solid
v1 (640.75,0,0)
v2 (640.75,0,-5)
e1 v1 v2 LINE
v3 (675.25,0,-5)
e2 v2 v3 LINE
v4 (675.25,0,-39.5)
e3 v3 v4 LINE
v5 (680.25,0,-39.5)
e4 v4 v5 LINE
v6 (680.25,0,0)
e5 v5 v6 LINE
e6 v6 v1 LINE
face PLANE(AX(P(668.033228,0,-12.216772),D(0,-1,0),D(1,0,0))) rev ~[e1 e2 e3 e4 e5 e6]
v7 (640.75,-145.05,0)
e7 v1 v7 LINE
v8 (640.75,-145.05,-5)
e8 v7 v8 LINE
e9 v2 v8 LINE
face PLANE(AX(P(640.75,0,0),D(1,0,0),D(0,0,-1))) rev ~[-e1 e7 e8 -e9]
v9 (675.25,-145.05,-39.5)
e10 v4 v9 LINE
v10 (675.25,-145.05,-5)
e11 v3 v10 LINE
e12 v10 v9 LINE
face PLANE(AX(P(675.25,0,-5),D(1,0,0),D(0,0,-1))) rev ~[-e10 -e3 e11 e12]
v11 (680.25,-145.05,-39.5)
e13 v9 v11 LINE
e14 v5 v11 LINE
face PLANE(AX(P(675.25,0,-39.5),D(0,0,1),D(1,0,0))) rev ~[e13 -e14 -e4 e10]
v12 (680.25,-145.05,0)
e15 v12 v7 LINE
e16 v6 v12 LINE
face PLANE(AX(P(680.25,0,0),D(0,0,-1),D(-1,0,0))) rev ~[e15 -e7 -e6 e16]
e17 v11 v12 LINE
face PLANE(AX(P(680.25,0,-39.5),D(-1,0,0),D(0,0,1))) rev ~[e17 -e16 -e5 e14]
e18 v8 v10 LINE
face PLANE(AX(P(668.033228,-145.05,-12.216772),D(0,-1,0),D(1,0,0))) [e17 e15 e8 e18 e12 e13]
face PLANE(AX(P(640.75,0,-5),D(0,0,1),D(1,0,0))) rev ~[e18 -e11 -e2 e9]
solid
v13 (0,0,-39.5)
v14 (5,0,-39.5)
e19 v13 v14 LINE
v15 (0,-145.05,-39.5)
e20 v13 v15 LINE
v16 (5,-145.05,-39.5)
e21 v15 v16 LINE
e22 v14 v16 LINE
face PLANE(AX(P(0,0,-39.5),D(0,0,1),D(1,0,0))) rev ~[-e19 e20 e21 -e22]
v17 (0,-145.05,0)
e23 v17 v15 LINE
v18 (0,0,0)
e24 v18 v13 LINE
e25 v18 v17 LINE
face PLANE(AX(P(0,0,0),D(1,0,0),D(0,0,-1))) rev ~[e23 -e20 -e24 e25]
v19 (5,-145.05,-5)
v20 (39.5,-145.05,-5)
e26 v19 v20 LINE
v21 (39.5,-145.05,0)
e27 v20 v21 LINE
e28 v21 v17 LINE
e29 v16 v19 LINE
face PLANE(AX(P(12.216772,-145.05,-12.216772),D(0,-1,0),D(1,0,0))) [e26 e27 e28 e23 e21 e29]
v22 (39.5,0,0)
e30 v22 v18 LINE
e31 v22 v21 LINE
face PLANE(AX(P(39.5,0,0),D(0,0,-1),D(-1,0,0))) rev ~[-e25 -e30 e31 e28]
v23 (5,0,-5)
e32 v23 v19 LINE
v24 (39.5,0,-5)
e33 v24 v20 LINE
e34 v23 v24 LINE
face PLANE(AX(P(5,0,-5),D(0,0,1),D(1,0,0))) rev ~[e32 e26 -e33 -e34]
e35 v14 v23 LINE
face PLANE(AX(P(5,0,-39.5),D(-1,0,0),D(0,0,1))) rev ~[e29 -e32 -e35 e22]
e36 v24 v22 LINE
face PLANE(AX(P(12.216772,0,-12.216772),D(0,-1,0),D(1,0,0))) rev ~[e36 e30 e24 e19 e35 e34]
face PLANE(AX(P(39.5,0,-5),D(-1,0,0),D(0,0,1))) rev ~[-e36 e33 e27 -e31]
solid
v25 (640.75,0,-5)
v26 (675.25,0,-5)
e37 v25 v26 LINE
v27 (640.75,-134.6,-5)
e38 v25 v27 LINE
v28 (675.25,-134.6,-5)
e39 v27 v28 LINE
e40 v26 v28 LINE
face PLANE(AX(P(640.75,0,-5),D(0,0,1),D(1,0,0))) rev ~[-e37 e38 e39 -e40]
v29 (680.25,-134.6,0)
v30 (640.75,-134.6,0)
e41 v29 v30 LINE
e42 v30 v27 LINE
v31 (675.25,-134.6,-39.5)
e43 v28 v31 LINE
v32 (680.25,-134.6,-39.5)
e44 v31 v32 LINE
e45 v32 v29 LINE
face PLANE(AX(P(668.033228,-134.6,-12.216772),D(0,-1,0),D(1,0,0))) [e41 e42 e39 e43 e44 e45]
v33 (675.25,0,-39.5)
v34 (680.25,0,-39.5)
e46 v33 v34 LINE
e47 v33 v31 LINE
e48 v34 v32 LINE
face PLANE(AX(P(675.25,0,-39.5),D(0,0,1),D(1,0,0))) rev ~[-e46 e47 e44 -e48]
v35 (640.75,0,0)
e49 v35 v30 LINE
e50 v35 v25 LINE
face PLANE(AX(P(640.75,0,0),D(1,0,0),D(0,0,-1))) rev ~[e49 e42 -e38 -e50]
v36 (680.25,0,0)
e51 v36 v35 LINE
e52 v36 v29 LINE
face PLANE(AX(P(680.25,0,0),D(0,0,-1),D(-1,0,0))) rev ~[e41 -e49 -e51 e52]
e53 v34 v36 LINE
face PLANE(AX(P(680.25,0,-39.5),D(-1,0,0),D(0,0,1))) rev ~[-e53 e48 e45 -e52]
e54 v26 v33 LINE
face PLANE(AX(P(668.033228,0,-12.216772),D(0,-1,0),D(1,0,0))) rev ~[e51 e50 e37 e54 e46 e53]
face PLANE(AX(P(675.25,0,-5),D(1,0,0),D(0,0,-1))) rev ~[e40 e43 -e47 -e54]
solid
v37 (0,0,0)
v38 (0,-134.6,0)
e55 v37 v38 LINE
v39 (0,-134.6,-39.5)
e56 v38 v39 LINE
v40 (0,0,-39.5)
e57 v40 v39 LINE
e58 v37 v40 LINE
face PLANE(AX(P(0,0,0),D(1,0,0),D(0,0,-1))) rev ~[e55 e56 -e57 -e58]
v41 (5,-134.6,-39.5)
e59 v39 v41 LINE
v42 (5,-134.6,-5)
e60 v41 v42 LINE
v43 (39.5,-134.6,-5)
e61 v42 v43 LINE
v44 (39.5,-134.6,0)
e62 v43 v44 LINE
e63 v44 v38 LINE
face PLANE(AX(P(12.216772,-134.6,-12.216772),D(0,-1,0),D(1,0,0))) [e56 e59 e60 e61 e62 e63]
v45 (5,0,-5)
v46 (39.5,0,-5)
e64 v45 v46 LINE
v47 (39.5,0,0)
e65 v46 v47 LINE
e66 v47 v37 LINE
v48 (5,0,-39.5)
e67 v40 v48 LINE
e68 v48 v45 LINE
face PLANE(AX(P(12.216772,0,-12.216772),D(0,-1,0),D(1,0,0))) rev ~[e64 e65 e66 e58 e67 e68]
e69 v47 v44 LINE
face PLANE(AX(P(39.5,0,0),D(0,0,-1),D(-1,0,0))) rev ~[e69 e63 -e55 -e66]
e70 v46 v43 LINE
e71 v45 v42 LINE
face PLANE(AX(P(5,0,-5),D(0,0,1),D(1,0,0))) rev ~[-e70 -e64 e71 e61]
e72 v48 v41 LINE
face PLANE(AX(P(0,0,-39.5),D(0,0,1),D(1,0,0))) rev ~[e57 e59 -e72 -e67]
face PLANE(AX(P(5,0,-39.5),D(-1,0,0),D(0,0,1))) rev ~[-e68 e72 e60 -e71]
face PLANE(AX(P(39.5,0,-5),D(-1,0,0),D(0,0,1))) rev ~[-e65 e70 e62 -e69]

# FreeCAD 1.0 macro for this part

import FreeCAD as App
import Part
import Sketcher


def add_polygon(sketch, points):
    """Adds a closed chain of lines whose ends are joined by coincident constraints."""
    first, n = sketch.GeometryCount, len(points)
    for a, b in zip(points, points[1:] + points[:1]):
        sketch.addGeometry(Part.LineSegment(App.Vector(*a, 0), App.Vector(*b, 0)), False)
    for i in range(n):
        sketch.addConstraint(Sketcher.Constraint("Coincident", first + i, 2, first + (i + 1) % n, 1))

doc = App.newDocument("Part")
body = doc.addObject("PartDesign::Body", "Body")
body.AllowCompound = True

# Sketch on XZ plane
sketch1 = body.newObject("Sketcher::SketchObject", "Sketch")
sketch1.AttachmentSupport = (doc.getObject("XZ_Plane"), [""])
sketch1.MapMode = "FlatFace"
add_polygon(sketch1, [(39.5, 0), (0, 0), (0, -39.5), (5, -39.5), (5, -5), (39.5, -5)])  # lines 0-5
add_polygon(sketch1, [(680.25, -39.5), (680.25, 0), (640.75, 0), (640.75, -5), (675.25, -5), (675.25, -39.5)])  # lines 6-11
sketch1.addConstraint(Sketcher.Constraint("Horizontal", 0))
sketch1.addConstraint(Sketcher.Constraint("Vertical", 1))
sketch1.addConstraint(Sketcher.Constraint("Horizontal", 2))
sketch1.addConstraint(Sketcher.Constraint("Vertical", 3))
sketch1.addConstraint(Sketcher.Constraint("Horizontal", 4))
sketch1.addConstraint(Sketcher.Constraint("Vertical", 5))
sketch1.addConstraint(Sketcher.Constraint("Vertical", 6))
sketch1.addConstraint(Sketcher.Constraint("Horizontal", 7))
sketch1.addConstraint(Sketcher.Constraint("Vertical", 8))
sketch1.addConstraint(Sketcher.Constraint("Horizontal", 9))
sketch1.addConstraint(Sketcher.Constraint("Vertical", 10))
sketch1.addConstraint(Sketcher.Constraint("Horizontal", 11))
sketch1.addConstraint(Sketcher.Constraint("Coincident", 0, 2, -1, 1))
sketch1.addConstraint(Sketcher.Constraint("PointOnObject", 6, 2, -1))
sketch1.addConstraint(Sketcher.Constraint("Horizontal", 4, 2, 8, 2))
sketch1.addConstraint(Sketcher.Constraint("Horizontal", 2, 2, 10, 2))
sketch1.addConstraint(Sketcher.Constraint("Equal", 0, 7))
sketch1.addConstraint(Sketcher.Constraint("Equal", 4, 9))
sketch1.addConstraint(Sketcher.Constraint("Equal", 7, 1))
sketch1.addConstraint(Sketcher.Constraint("Equal", 9, 3))
sketch1.addConstraint(Sketcher.Constraint("DistanceX", 2, 1, 2, 2, 5.0))
sketch1.addConstraint(Sketcher.Constraint("DistanceX", 0, 2, 0, 1, 39.5))
sketch1.addConstraint(Sketcher.Constraint("DistanceX", -1, 1, 6, 2, 680.25))
pad1 = body.newObject("PartDesign::Pad", "Pad")
pad1.Profile = sketch1
pad1.Length = 145.05
body2 = doc.addObject("PartDesign::Body", "Body001")
body2.AllowCompound = True

# Sketch on XZ plane
sketch2 = body2.newObject("Sketcher::SketchObject", "Sketch001")
sketch2.AttachmentSupport = (doc.getObject("XZ_Plane001"), [""])
sketch2.MapMode = "FlatFace"
add_polygon(sketch2, [(39.5, 0), (0, 0), (0, -39.5), (5, -39.5), (5, -5), (39.5, -5)])  # lines 0-5
add_polygon(sketch2, [(680.25, -39.5), (680.25, 0), (640.75, 0), (640.75, -5), (675.25, -5), (675.25, -39.5)])  # lines 6-11
sketch2.addConstraint(Sketcher.Constraint("Horizontal", 0))
sketch2.addConstraint(Sketcher.Constraint("Vertical", 1))
sketch2.addConstraint(Sketcher.Constraint("Horizontal", 2))
sketch2.addConstraint(Sketcher.Constraint("Vertical", 3))
sketch2.addConstraint(Sketcher.Constraint("Horizontal", 4))
sketch2.addConstraint(Sketcher.Constraint("Vertical", 5))
sketch2.addConstraint(Sketcher.Constraint("Vertical", 6))
sketch2.addConstraint(Sketcher.Constraint("Horizontal", 7))
sketch2.addConstraint(Sketcher.Constraint("Vertical", 8))
sketch2.addConstraint(Sketcher.Constraint("Horizontal", 9))
sketch2.addConstraint(Sketcher.Constraint("Vertical", 10))
sketch2.addConstraint(Sketcher.Constraint("Horizontal", 11))
sketch2.addConstraint(Sketcher.Constraint("Coincident", 0, 2, -1, 1))
sketch2.addConstraint(Sketcher.Constraint("PointOnObject", 6, 2, -1))
sketch2.addConstraint(Sketcher.Constraint("Horizontal", 4, 2, 8, 2))
sketch2.addConstraint(Sketcher.Constraint("Horizontal", 2, 2, 10, 2))
sketch2.addConstraint(Sketcher.Constraint("Equal", 0, 7))
sketch2.addConstraint(Sketcher.Constraint("Equal", 4, 9))
sketch2.addConstraint(Sketcher.Constraint("Equal", 7, 1))
sketch2.addConstraint(Sketcher.Constraint("Equal", 9, 3))
sketch2.addConstraint(Sketcher.Constraint("DistanceX", 2, 1, 2, 2, 5.0))
sketch2.addConstraint(Sketcher.Constraint("DistanceX", 0, 2, 0, 1, 39.5))
sketch2.addConstraint(Sketcher.Constraint("DistanceX", -1, 1, 6, 2, 680.25))
pad2 = body2.newObject("PartDesign::Pad", "Pad001")
pad2.Profile = sketch2
pad2.Length = 134.6

doc.recompute()
